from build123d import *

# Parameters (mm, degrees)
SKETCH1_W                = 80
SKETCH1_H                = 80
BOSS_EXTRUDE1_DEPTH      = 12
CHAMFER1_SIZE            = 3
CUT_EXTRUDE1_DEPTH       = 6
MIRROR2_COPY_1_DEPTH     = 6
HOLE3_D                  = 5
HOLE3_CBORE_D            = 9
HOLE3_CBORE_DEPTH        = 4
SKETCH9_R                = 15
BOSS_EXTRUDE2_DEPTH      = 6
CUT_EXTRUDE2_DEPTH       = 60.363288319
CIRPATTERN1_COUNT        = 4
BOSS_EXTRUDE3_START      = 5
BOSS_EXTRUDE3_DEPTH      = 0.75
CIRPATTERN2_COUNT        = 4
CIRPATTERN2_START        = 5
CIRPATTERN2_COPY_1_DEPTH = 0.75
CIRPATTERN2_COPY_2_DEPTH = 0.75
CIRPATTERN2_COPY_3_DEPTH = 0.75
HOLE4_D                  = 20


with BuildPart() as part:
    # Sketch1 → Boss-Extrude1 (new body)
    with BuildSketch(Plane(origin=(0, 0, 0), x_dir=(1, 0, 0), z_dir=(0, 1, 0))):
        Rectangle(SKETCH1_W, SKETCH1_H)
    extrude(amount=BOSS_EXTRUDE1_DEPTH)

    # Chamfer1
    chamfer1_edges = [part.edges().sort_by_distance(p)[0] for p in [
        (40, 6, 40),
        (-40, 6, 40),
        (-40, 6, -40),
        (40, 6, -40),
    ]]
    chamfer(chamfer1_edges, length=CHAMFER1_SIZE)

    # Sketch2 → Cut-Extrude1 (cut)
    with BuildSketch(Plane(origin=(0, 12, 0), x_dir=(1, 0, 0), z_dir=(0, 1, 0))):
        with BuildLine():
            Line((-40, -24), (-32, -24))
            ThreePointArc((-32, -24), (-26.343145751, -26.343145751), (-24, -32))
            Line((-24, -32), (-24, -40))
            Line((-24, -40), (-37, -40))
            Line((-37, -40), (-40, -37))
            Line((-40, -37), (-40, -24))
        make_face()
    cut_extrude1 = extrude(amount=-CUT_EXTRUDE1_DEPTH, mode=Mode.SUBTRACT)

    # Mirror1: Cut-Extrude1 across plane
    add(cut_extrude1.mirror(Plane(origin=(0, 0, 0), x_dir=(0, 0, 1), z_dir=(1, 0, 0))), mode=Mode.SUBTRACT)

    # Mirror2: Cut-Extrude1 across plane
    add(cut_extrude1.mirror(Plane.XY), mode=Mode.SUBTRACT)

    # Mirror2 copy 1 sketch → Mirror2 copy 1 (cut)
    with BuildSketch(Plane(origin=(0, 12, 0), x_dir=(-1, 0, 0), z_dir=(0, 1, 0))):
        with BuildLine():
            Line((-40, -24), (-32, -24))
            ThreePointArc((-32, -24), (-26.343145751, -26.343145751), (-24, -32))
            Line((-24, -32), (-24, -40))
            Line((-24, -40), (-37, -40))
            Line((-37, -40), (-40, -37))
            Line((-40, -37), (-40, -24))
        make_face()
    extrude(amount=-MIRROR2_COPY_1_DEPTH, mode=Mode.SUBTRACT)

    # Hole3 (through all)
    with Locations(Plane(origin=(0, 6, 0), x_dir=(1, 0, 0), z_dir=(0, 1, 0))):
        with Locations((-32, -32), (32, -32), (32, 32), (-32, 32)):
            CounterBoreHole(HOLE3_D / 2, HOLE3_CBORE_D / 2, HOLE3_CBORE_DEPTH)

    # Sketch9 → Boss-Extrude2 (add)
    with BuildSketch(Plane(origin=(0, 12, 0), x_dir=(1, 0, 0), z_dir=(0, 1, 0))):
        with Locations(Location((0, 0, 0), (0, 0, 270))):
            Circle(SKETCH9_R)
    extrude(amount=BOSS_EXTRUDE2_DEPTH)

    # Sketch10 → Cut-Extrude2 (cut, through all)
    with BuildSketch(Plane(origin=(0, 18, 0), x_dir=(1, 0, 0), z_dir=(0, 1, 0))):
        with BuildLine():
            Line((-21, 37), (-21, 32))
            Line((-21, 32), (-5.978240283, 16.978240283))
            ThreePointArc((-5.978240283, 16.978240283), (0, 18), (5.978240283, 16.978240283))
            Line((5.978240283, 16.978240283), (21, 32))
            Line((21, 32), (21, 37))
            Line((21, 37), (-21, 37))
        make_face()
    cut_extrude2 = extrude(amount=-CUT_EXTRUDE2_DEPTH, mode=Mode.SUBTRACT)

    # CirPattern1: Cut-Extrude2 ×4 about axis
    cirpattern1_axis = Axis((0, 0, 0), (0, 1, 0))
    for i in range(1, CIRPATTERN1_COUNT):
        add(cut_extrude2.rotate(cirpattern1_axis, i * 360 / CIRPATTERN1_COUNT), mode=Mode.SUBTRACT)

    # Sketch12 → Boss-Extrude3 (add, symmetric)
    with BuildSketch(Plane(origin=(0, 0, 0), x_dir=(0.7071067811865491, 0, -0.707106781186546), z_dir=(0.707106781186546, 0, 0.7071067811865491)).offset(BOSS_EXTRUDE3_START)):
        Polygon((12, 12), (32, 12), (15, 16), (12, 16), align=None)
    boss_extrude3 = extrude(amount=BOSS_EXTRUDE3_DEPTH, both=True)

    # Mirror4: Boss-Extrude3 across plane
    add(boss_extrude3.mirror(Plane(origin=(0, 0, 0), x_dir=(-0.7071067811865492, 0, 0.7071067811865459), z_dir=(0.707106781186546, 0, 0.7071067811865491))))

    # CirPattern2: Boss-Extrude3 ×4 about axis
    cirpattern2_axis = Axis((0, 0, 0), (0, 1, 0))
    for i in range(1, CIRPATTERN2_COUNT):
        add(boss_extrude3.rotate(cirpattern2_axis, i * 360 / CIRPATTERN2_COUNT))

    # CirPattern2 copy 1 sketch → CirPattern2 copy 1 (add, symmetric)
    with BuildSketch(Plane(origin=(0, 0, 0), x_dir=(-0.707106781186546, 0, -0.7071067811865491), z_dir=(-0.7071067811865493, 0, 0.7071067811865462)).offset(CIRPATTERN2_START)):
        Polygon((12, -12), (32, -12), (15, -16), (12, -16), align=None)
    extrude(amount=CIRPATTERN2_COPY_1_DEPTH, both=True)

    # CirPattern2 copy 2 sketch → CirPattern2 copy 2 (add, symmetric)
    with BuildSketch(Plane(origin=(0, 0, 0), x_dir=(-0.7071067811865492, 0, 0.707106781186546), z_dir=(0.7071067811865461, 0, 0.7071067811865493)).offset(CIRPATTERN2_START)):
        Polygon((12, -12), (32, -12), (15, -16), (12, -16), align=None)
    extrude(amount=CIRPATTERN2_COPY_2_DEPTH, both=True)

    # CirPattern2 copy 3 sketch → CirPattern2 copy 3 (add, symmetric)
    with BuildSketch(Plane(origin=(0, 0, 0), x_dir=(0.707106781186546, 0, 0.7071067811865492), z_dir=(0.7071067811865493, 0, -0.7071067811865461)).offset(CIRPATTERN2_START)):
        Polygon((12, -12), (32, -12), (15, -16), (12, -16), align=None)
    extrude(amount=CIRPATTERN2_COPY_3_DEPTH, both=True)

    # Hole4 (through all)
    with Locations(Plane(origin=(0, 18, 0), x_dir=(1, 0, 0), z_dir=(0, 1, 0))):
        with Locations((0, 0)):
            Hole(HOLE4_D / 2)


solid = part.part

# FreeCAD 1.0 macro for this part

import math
import FreeCAD as App
import Part
import Sketcher

V = App.Vector


def edges_at(feature, points):
    """Names of the edges that pass closest to the given points."""
    edges = feature.Shape.Edges
    near = lambda p: min(range(len(edges)), key=lambda i: edges[i].distToShape(Part.Vertex(*p))[0])
    return sorted({f"Edge{near(p) + 1}" for p in points})


def add_polygon(sketch, points):
    """Adds a closed chain of lines whose ends are joined by coincident constraints."""
    first, n = sketch.GeometryCount, len(points)
    for a, b in zip(points, points[1:] + points[:1]):
        sketch.addGeometry(Part.LineSegment(App.Vector(*a, 0), App.Vector(*b, 0)), False)
    for i in range(n):
        sketch.addConstraint(Sketcher.Constraint("Coincident", first + i, 2, first + (i + 1) % n, 1))

doc = App.newDocument("Part")
params = doc.addObject("Spreadsheet::Sheet", "Params")
for row, (alias, value) in enumerate([
    ("sketch1_width", "80 mm"),
    ("pad1_length", "12 mm"),
    ("chamfer_size", "3 mm"),
    ("sketch2_radius", "8 mm"),
    ("sketch2_width", "8 mm"),
    ("sketch2_width2", "13 mm"),
    ("pocket1_length", "6 mm"),
    ("sketch3_radius", "8 mm"),
    ("sketch3_width", "8 mm"),
    ("sketch3_width2", "13 mm"),
    ("pocket2_length", "6 mm"),
    ("sketch4_diameter", "5 mm"),
    ("hole_diameter", "5 mm"),
    ("hole_cbore_diameter", "9 mm"),
    ("hole_cbore_depth", "4 mm"),
    ("sketch5_diameter", "30 mm"),
    ("pad2_length", "6 mm"),
    ("sketch6_radius", "18 mm"),
    ("sketch6_width", "42 mm"),
    ("sketch6_height", "5 mm"),
    ("sketch7_width", "20 mm"),
    ("sketch7_width2", "3 mm"),
    ("sketch7_height", "4 mm"),
    ("pad3_length", "1.5 mm"),
    ("sketch8_width", "20 mm"),
    ("sketch8_width2", "3 mm"),
    ("sketch8_height", "4 mm"),
    ("pad4_length", "1.5 mm"),
    ("sketch9_width", "20 mm"),
    ("sketch9_width2", "3 mm"),
    ("sketch9_height", "4 mm"),
    ("pad5_length", "1.5 mm"),
    ("sketch10_width", "20 mm"),
    ("sketch10_width2", "3 mm"),
    ("sketch10_height", "4 mm"),
    ("pad6_length", "1.5 mm"),
    ("sketch11_diameter", "20 mm"),
    ("hole2_diameter", "20 mm"),
], start=1):
    params.set(f"A{row}", alias)
    params.set(f"B{row}", "=" + value)
    params.setAlias(f"B{row}", alias)

body = doc.addObject("PartDesign::Body", "Body")

# Sketch on XZ plane
sketch1 = doc.addObject("Sketcher::SketchObject", "Sketch")
body.addObject(sketch1)
sketch1.AttachmentSupport = (doc.XZ_Plane, [""])
sketch1.MapMode = "FlatFace"
add_polygon(sketch1, [(-40, -40), (-40, 40), (40, 40), (40, -40)])  # lines 0-3
sketch1.addConstraint([
    Sketcher.Constraint("Vertical", 0),
    Sketcher.Constraint("Horizontal", 1),
    Sketcher.Constraint("Vertical", 2),
    Sketcher.Constraint("Horizontal", 3),
    Sketcher.Constraint("Symmetric", 0, 2, 2, 2, -1, 1),
    Sketcher.Constraint("Equal", 3, 0),
    Sketcher.Constraint("DistanceX", 1, 1, 1, 2, 80.0),
])
sketch1.setExpression("Constraints[10]", "Params.sketch1_width")
pad1 = doc.addObject("PartDesign::Pad", "Pad")
body.addObject(pad1)
pad1.Profile = sketch1
pad1.setExpression("Length", "Params.pad1_length")
pad1.Reversed = True
doc.recompute()

chamfer = doc.addObject("PartDesign::Chamfer", "Chamfer")
body.addObject(chamfer)
chamfer.Base = (pad1, edges_at(pad1, [
    (40, 6, 40),
    (-40, 6, 40),
    (-40, 6, -40),
    (40, 6, -40),
]))
chamfer.setExpression("Size", "Params.chamfer_size")

# Sketch on XZ plane
sketch2 = doc.addObject("Sketcher::SketchObject", "Sketch001")
body.addObject(sketch2)
sketch2.AttachmentSupport = (doc.XZ_Plane, [""])
sketch2.MapMode = "FlatFace"
sketch2.AttachmentOffset = App.Placement(V(0, 0, -12), App.Rotation())
sketch2.addGeometry([
    Part.LineSegment(V(-32, 24, 0), V(-40, 24, 0)),  # 0
    Part.LineSegment(V(-40, 24, 0), V(-40, 37, 0)),  # 1
    Part.LineSegment(V(-40, 37, 0), V(-37, 40, 0)),  # 2
    Part.LineSegment(V(-37, 40, 0), V(-24, 40, 0)),  # 3
    Part.LineSegment(V(-24, 40, 0), V(-24, 32, 0)),  # 4
    Part.ArcOfCircle(Part.Circle(V(-32, 32, 0), V(0, 0, 1), 8), math.radians(-90), math.radians(0)),  # 5
], False)
sketch2.addConstraint([
    Sketcher.Constraint("Coincident", 0, 2, 1, 1),
    Sketcher.Constraint("Coincident", 1, 2, 2, 1),
    Sketcher.Constraint("Coincident", 2, 2, 3, 1),
    Sketcher.Constraint("Coincident", 3, 2, 4, 1),
    Sketcher.Constraint("Tangent", 4, 2, 5, 2),
    Sketcher.Constraint("Tangent", 5, 1, 0, 1),
    Sketcher.Constraint("Horizontal", 0),
    Sketcher.Constraint("Vertical", 1),
    Sketcher.Constraint("Horizontal", 3),
    Sketcher.Constraint("Vertical", 4),
    Sketcher.Constraint("Equal", 3, 1),
    Sketcher.Constraint("Equal", 0, 4),
    Sketcher.Constraint("Radius", 5, 8.0),
    Sketcher.Constraint("DistanceX", 0, 2, 0, 1, 8.0),
    Sketcher.Constraint("DistanceX", 3, 1, 3, 2, 13.0),
    Sketcher.Constraint("DistanceX", 5, 3, -1, 1, 32.0),
    Sketcher.Constraint("DistanceY", -1, 1, 5, 3, 32.0),
])
sketch2.setExpression("Constraints[12]", "Params.sketch2_radius")
sketch2.setExpression("Constraints[13]", "Params.sketch2_width")
sketch2.setExpression("Constraints[14]", "Params.sketch2_width2")
pocket1 = doc.addObject("PartDesign::Pocket", "Pocket")
body.addObject(pocket1)
pocket1.Profile = sketch2
pocket1.setExpression("Length", "Params.pocket1_length")
pocket1.Reversed = True
doc.recompute()

mirrored = doc.addObject("PartDesign::Mirrored", "Mirrored")
body.addObject(mirrored)
mirrored.Originals = [pocket1]
mirrored.MirrorPlane = (doc.YZ_Plane, [""])
body.Tip = mirrored
doc.recompute()

mirrored2 = doc.addObject("PartDesign::Mirrored", "Mirrored001")
body.addObject(mirrored2)
mirrored2.Originals = [pocket1]
mirrored2.MirrorPlane = (doc.XY_Plane, [""])
body.Tip = mirrored2

# Sketch on XZ plane
sketch3 = doc.addObject("Sketcher::SketchObject", "Sketch002")
body.addObject(sketch3)
sketch3.AttachmentSupport = (doc.XZ_Plane, [""])
sketch3.MapMode = "FlatFace"
sketch3.AttachmentOffset = App.Placement(V(0, 0, -12), App.Rotation())
sketch3.addGeometry([
    Part.LineSegment(V(32, -24, 0), V(40, -24, 0)),  # 0
    Part.LineSegment(V(40, -24, 0), V(40, -37, 0)),  # 1
    Part.LineSegment(V(40, -37, 0), V(37, -40, 0)),  # 2
    Part.LineSegment(V(37, -40, 0), V(24, -40, 0)),  # 3
    Part.LineSegment(V(24, -40, 0), V(24, -32, 0)),  # 4
    Part.ArcOfCircle(Part.Circle(V(32, -32, 0), V(0, 0, 1), 8), math.radians(90), math.radians(180)),  # 5
], False)
sketch3.addConstraint([
    Sketcher.Constraint("Coincident", 0, 2, 1, 1),
    Sketcher.Constraint("Coincident", 1, 2, 2, 1),
    Sketcher.Constraint("Coincident", 2, 2, 3, 1),
    Sketcher.Constraint("Coincident", 3, 2, 4, 1),
    Sketcher.Constraint("Tangent", 4, 2, 5, 2),
    Sketcher.Constraint("Tangent", 5, 1, 0, 1),
    Sketcher.Constraint("Horizontal", 0),
    Sketcher.Constraint("Vertical", 1),
    Sketcher.Constraint("Horizontal", 3),
    Sketcher.Constraint("Vertical", 4),
    Sketcher.Constraint("Equal", 3, 1),
    Sketcher.Constraint("Equal", 0, 4),
    Sketcher.Constraint("Radius", 5, 8.0),
    Sketcher.Constraint("DistanceX", 0, 1, 0, 2, 8.0),
    Sketcher.Constraint("DistanceX", 3, 2, 3, 1, 13.0),
    Sketcher.Constraint("DistanceX", -1, 1, 5, 3, 32.0),
    Sketcher.Constraint("DistanceY", 5, 3, -1, 1, 32.0),
])
sketch3.setExpression("Constraints[12]", "Params.sketch3_radius")
sketch3.setExpression("Constraints[13]", "Params.sketch3_width")
sketch3.setExpression("Constraints[14]", "Params.sketch3_width2")
pocket2 = doc.addObject("PartDesign::Pocket", "Pocket001")
body.addObject(pocket2)
pocket2.Profile = sketch3
pocket2.setExpression("Length", "Params.pocket2_length")
pocket2.Reversed = True

# Sketch on XZ plane
sketch4 = doc.addObject("Sketcher::SketchObject", "Sketch003")
body.addObject(sketch4)
sketch4.AttachmentSupport = (doc.XZ_Plane, [""])
sketch4.MapMode = "FlatFace"
sketch4.AttachmentOffset = App.Placement(V(0, 0, -6), App.Rotation())
sketch4.addGeometry([
    Part.Circle(V(-32, 32, 0), V(0, 0, 1), 2.5),
    Part.Circle(V(32, 32, 0), V(0, 0, 1), 2.5),
    Part.Circle(V(32, -32, 0), V(0, 0, 1), 2.5),
    Part.Circle(V(-32, -32, 0), V(0, 0, 1), 2.5),
], False)
sketch4.addConstraint([
    Sketcher.Constraint("Equal", 0, 1),
    Sketcher.Constraint("Equal", 1, 2),
    Sketcher.Constraint("Equal", 2, 3),
    Sketcher.Constraint("Symmetric", 0, 3, 2, 3, -1, 1),
    Sketcher.Constraint("Symmetric", 1, 3, 3, 3, -1, 1),
    Sketcher.Constraint("Symmetric", 0, 3, 1, 3, -2),
    Sketcher.Constraint("Diameter", 0, 5.0),
    Sketcher.Constraint("DistanceX", 0, 3, -1, 1, 32.0),
    Sketcher.Constraint("DistanceY", -1, 1, 0, 3, 32.0),
])
sketch4.setExpression("Constraints[6]", "Params.sketch4_diameter")
doc.recompute()
hole = doc.addObject("PartDesign::Hole", "Hole")
body.addObject(hole)
hole.Profile = sketch4
hole.ThreadType = "None"
hole.setExpression("Diameter", "Params.hole_diameter")
hole.DepthType = "ThroughAll"
hole.HoleCutType = "Counterbore"
hole.setExpression("HoleCutDiameter", "Params.hole_cbore_diameter")
hole.setExpression("HoleCutDepth", "Params.hole_cbore_depth")
hole.Reversed = True

# Sketch on XZ plane
sketch5 = doc.addObject("Sketcher::SketchObject", "Sketch004")
body.addObject(sketch5)
sketch5.AttachmentSupport = (doc.XZ_Plane, [""])
sketch5.MapMode = "FlatFace"
sketch5.AttachmentOffset = App.Placement(V(0, 0, -12), App.Rotation())
sketch5.addGeometry(Part.Circle(V(0, 0, 0), V(0, 0, 1), 15), False)
sketch5.addConstraint([
    Sketcher.Constraint("Coincident", 0, 3, -1, 1),
    Sketcher.Constraint("Diameter", 0, 30.0),
])
sketch5.setExpression("Constraints[1]", "Params.sketch5_diameter")
pad2 = doc.addObject("PartDesign::Pad", "Pad001")
body.addObject(pad2)
pad2.Profile = sketch5
pad2.setExpression("Length", "Params.pad2_length")
pad2.Reversed = True

# Sketch on XZ plane
sketch6 = doc.addObject("Sketcher::SketchObject", "Sketch005")
body.addObject(sketch6)
sketch6.AttachmentSupport = (doc.XZ_Plane, [""])
sketch6.MapMode = "FlatFace"
sketch6.AttachmentOffset = App.Placement(V(0, 0, -18), App.Rotation())
sketch6.addGeometry([
    Part.LineSegment(V(-21, -37, 0), V(-21, -32, 0)),  # 0
    Part.LineSegment(V(-21, -32, 0), V(-6, -17, 0)),  # 1
    Part.ArcOfCircle(Part.Circle(V(0, 0, 0), V(0, 0, 1), 18), math.radians(-109), math.radians(-71)),  # 2
    Part.LineSegment(V(6, -17, 0), V(21, -32, 0)),  # 3
    Part.LineSegment(V(21, -32, 0), V(21, -37, 0)),  # 4
    Part.LineSegment(V(21, -37, 0), V(-21, -37, 0)),  # 5
], False)
sketch6.addConstraint([
    Sketcher.Constraint("Coincident", 0, 2, 1, 1),
    Sketcher.Constraint("Coincident", 1, 2, 2, 1),
    Sketcher.Constraint("Coincident", 2, 2, 3, 1),
    Sketcher.Constraint("Coincident", 3, 2, 4, 1),
    Sketcher.Constraint("Coincident", 4, 2, 5, 1),
    Sketcher.Constraint("Coincident", 5, 2, 0, 1),
    Sketcher.Constraint("Vertical", 0),
    Sketcher.Constraint("Vertical", 4),
    Sketcher.Constraint("Horizontal", 5),
    Sketcher.Constraint("Coincident", 2, 3, -1, 1),
    Sketcher.Constraint("Symmetric", 0, 2, 3, 2, -2),
    Sketcher.Constraint("Perpendicular", 1, 3),
    Sketcher.Constraint("Horizontal", 1, 2, 2, 2),
    Sketcher.Constraint("Radius", 2, 18.0),
    Sketcher.Constraint("DistanceX", 5, 2, 5, 1, 42.0),
    Sketcher.Constraint("DistanceY", 0, 1, 0, 2, 5.0),
    Sketcher.Constraint("DistanceY", 0, 2, -1, 1, 32.0),
])
sketch6.setExpression("Constraints[13]", "Params.sketch6_radius")
sketch6.setExpression("Constraints[14]", "Params.sketch6_width")
sketch6.setExpression("Constraints[15]", "Params.sketch6_height")
pocket3 = doc.addObject("PartDesign::Pocket", "Pocket002")
body.addObject(pocket3)
pocket3.Profile = sketch6
pocket3.Type = "ThroughAll"
pocket3.Reversed = True
doc.recompute()

polarpattern = doc.addObject("PartDesign::PolarPattern", "PolarPattern")
body.addObject(polarpattern)
polarpattern.Originals = [pocket3]
polarpattern.Axis = (doc.Y_Axis, [""])
polarpattern.Angle = 360
polarpattern.Occurrences = 4
body.Tip = polarpattern

# Sketch on an angled plane
sketch7 = doc.addObject("Sketcher::SketchObject", "Sketch006")
body.addObject(sketch7)
sketch7.Placement = App.Placement(V(3.535534, 0, 3.535534), App.Rotation(V(0.707106781, 0, -0.707106781), V(0, 0.999999999, 0), V(0.707106781, 0, 0.707106781), "ZXY"))
add_polygon(sketch7, [(12, 12), (32, 12), (15, 16), (12, 16)])  # lines 0-3
sketch7.addConstraint([
    Sketcher.Constraint("Horizontal", 0),
    Sketcher.Constraint("Horizontal", 2),
    Sketcher.Constraint("Vertical", 3),
    Sketcher.Constraint("DistanceX", 0, 1, 0, 2, 20.0),
    Sketcher.Constraint("DistanceX", 2, 2, 2, 1, 3.0),
    Sketcher.Constraint("DistanceY", 3, 2, 3, 1, 4.0),
    Sketcher.Constraint("DistanceX", -1, 1, 0, 2, 32.0),
    Sketcher.Constraint("DistanceY", -1, 1, 0, 2, 12.0),
])
sketch7.setExpression("Constraints[7]", "Params.sketch7_width")
sketch7.setExpression("Constraints[8]", "Params.sketch7_width2")
sketch7.setExpression("Constraints[9]", "Params.sketch7_height")
pad3 = doc.addObject("PartDesign::Pad", "Pad002")
body.addObject(pad3)
pad3.Profile = sketch7
pad3.setExpression("Length", "Params.pad3_length")
pad3.Midplane = True
doc.recompute()

datumplane = doc.addObject("PartDesign::Plane", "DatumPlane")
body.addObject(datumplane)
datumplane.Placement = App.Placement(V(0, 0, 0), App.Rotation(V(-0.707106781, 0, 0.707106781), V(0, -1, 0), V(0.707106781, 0, 0.707106781), "ZXY"))
mirrored3 = doc.addObject("PartDesign::Mirrored", "Mirrored002")
body.addObject(mirrored3)
mirrored3.Originals = [pad3]
mirrored3.MirrorPlane = (datumplane, [""])
body.Tip = mirrored3
doc.recompute()

polarpattern2 = doc.addObject("PartDesign::PolarPattern", "PolarPattern001")
body.addObject(polarpattern2)
polarpattern2.Originals = [pad3]
polarpattern2.Axis = (doc.Y_Axis, [""])
polarpattern2.Angle = 360
polarpattern2.Occurrences = 4
body.Tip = polarpattern2

# Sketch on an angled plane
sketch8 = doc.addObject("Sketcher::SketchObject", "Sketch007")
body.addObject(sketch8)
sketch8.Placement = App.Placement(V(-3.535534, 0, 3.535534), App.Rotation(V(-0.707106781, 0, -0.707106781), V(0, -0.999999999, 0), V(-0.707106781, 0, 0.707106781), "ZXY"))
add_polygon(sketch8, [(32, -12), (12, -12), (12, -16), (15, -16)])  # lines 0-3
sketch8.addConstraint([
    Sketcher.Constraint("Horizontal", 0),
    Sketcher.Constraint("Vertical", 1),
    Sketcher.Constraint("Horizontal", 2),
    Sketcher.Constraint("DistanceX", 0, 2, 0, 1, 20.0),
    Sketcher.Constraint("DistanceX", 2, 1, 2, 2, 3.0),
    Sketcher.Constraint("DistanceY", 1, 2, 1, 1, 4.0),
    Sketcher.Constraint("DistanceX", -1, 1, 0, 2, 12.0),
    Sketcher.Constraint("DistanceY", 0, 2, -1, 1, 12.0),
])
sketch8.setExpression("Constraints[7]", "Params.sketch8_width")
sketch8.setExpression("Constraints[8]", "Params.sketch8_width2")
sketch8.setExpression("Constraints[9]", "Params.sketch8_height")
pad4 = doc.addObject("PartDesign::Pad", "Pad003")
body.addObject(pad4)
pad4.Profile = sketch8
pad4.setExpression("Length", "Params.pad4_length")
pad4.Midplane = True

# Sketch on an angled plane
sketch9 = doc.addObject("Sketcher::SketchObject", "Sketch008")
body.addObject(sketch9)
sketch9.Placement = App.Placement(V(3.535534, 0, 3.535534), App.Rotation(V(-0.707106781, 0, 0.707106781), V(0, -0.999999999, 0), V(0.707106781, 0, 0.707106781), "ZXY"))
add_polygon(sketch9, [(32, -12), (12, -12), (12, -16), (15, -16)])  # lines 0-3
sketch9.addConstraint([
    Sketcher.Constraint("Horizontal", 0),
    Sketcher.Constraint("Vertical", 1),
    Sketcher.Constraint("Horizontal", 2),
    Sketcher.Constraint("DistanceX", 0, 2, 0, 1, 20.0),
    Sketcher.Constraint("DistanceX", 2, 1, 2, 2, 3.0),
    Sketcher.Constraint("DistanceY", 1, 2, 1, 1, 4.0),
    Sketcher.Constraint("DistanceX", -1, 1, 0, 2, 12.0),
    Sketcher.Constraint("DistanceY", 0, 2, -1, 1, 12.0),
])
sketch9.setExpression("Constraints[7]", "Params.sketch9_width")
sketch9.setExpression("Constraints[8]", "Params.sketch9_width2")
sketch9.setExpression("Constraints[9]", "Params.sketch9_height")
pad5 = doc.addObject("PartDesign::Pad", "Pad004")
body.addObject(pad5)
pad5.Profile = sketch9
pad5.setExpression("Length", "Params.pad5_length")
pad5.Midplane = True

# Sketch on an angled plane
sketch10 = doc.addObject("Sketcher::SketchObject", "Sketch009")
body.addObject(sketch10)
sketch10.Placement = App.Placement(V(3.535534, 0, -3.535534), App.Rotation(V(0.707106781, 0, 0.707106781), V(0, -0.999999999, 0), V(0.707106781, 0, -0.707106781), "ZXY"))
add_polygon(sketch10, [(32, -12), (12, -12), (12, -16), (15, -16)])  # lines 0-3
sketch10.addConstraint([
    Sketcher.Constraint("Horizontal", 0),
    Sketcher.Constraint("Vertical", 1),
    Sketcher.Constraint("Horizontal", 2),
    Sketcher.Constraint("DistanceX", 0, 2, 0, 1, 20.0),
    Sketcher.Constraint("DistanceX", 2, 1, 2, 2, 3.0),
    Sketcher.Constraint("DistanceY", 1, 2, 1, 1, 4.0),
    Sketcher.Constraint("DistanceX", -1, 1, 0, 2, 12.0),
    Sketcher.Constraint("DistanceY", 0, 2, -1, 1, 12.0),
])
sketch10.setExpression("Constraints[7]", "Params.sketch10_width")
sketch10.setExpression("Constraints[8]", "Params.sketch10_width2")
sketch10.setExpression("Constraints[9]", "Params.sketch10_height")
pad6 = doc.addObject("PartDesign::Pad", "Pad005")
body.addObject(pad6)
pad6.Profile = sketch10
pad6.setExpression("Length", "Params.pad6_length")
pad6.Midplane = True

# Sketch on XZ plane
sketch11 = doc.addObject("Sketcher::SketchObject", "Sketch010")
body.addObject(sketch11)
sketch11.AttachmentSupport = (doc.XZ_Plane, [""])
sketch11.MapMode = "FlatFace"
sketch11.AttachmentOffset = App.Placement(V(0, 0, -18), App.Rotation())
sketch11.addGeometry(Part.Circle(V(0, 0, 0), V(0, 0, 1), 10), False)
sketch11.addConstraint([
    Sketcher.Constraint("Coincident", 0, 3, -1, 1),
    Sketcher.Constraint("Diameter", 0, 20.0),
])
sketch11.setExpression("Constraints[1]", "Params.sketch11_diameter")
doc.recompute()
hole2 = doc.addObject("PartDesign::Hole", "Hole001")
body.addObject(hole2)
hole2.Profile = sketch11
hole2.ThreadType = "None"
hole2.setExpression("Diameter", "Params.hole2_diameter")
hole2.DepthType = "ThroughAll"
hole2.Reversed = True

doc.recompute()
